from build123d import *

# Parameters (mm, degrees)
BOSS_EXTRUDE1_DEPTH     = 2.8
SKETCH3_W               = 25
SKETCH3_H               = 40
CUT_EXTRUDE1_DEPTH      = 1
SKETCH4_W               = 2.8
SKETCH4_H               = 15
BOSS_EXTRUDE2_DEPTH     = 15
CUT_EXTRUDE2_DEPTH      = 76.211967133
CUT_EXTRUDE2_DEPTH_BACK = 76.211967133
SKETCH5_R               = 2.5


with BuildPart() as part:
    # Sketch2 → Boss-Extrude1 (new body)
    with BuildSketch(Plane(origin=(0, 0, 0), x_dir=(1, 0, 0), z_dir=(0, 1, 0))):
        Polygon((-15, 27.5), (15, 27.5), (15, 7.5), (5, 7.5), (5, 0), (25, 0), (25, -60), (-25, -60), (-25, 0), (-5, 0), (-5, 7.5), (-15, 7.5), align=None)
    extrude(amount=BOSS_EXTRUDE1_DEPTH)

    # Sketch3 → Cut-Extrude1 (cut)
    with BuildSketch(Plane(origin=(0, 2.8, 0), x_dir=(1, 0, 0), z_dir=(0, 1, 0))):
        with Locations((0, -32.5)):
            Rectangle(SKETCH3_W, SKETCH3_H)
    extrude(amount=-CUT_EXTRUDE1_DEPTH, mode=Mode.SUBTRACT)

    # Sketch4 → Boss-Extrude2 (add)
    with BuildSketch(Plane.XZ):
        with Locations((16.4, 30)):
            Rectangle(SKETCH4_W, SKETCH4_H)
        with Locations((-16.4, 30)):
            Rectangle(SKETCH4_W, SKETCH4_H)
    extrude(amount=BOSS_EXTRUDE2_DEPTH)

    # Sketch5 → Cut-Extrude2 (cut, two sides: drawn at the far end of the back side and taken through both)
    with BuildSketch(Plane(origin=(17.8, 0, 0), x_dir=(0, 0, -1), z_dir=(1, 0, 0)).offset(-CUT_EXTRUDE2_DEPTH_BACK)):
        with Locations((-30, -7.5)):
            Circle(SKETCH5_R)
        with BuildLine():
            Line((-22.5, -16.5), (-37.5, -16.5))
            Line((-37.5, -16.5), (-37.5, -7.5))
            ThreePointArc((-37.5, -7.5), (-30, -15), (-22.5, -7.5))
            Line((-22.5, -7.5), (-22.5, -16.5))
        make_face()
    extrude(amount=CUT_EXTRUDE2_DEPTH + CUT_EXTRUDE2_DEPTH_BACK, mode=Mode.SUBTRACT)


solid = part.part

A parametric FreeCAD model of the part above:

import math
import FreeCAD as App
import Part
import Sketcher

V = App.Vector

doc = App.newDocument("Part")
body = doc.addObject("PartDesign::Body", "Body")

# Sketch on XZ plane
sketch1 = body.newObject("Sketcher::SketchObject", "Sketch")
sketch1.AttachmentSupport = (doc.getObject("XZ_Plane"), [""])
sketch1.MapMode = "FlatFace"
sketch1.addGeometry([
    Part.LineSegment(V(15, -28, 0), V(-15, -28, 0)),  # 0
    Part.LineSegment(V(-15, -28, 0), V(-15, -8, 0)),  # 1
    Part.LineSegment(V(-15, -8, 0), V(-5, -8, 0)),  # 2
    Part.LineSegment(V(-5, -8, 0), V(-5, 0, 0)),  # 3
    Part.LineSegment(V(-5, 0, 0), V(-25, 0, 0)),  # 4
    Part.LineSegment(V(-25, 0, 0), V(-25, 60, 0)),  # 5
    Part.LineSegment(V(-25, 60, 0), V(25, 60, 0)),  # 6
    Part.LineSegment(V(25, 60, 0), V(25, 0, 0)),  # 7
    Part.LineSegment(V(25, 0, 0), V(5, 0, 0)),  # 8
    Part.LineSegment(V(5, 0, 0), V(5, -8, 0)),  # 9
    Part.LineSegment(V(5, -8, 0), V(15, -8, 0)),  # 10
    Part.LineSegment(V(15, -8, 0), V(15, -28, 0)),  # 11
], False)
sketch1.addConstraint([
    Sketcher.Constraint("Coincident", 0, 2, 1, 1),
    Sketcher.Constraint("Coincident", 1, 2, 2, 1),
    Sketcher.Constraint("Coincident", 2, 2, 3, 1),
    Sketcher.Constraint("Coincident", 3, 2, 4, 1),
    Sketcher.Constraint("Coincident", 4, 2, 5, 1),
    Sketcher.Constraint("Coincident", 5, 2, 6, 1),
    Sketcher.Constraint("Coincident", 6, 2, 7, 1),
    Sketcher.Constraint("Coincident", 7, 2, 8, 1),
    Sketcher.Constraint("Coincident", 8, 2, 9, 1),
    Sketcher.Constraint("Coincident", 9, 2, 10, 1),
    Sketcher.Constraint("Coincident", 10, 2, 11, 1),
    Sketcher.Constraint("Coincident", 11, 2, 0, 1),
    Sketcher.Constraint("Horizontal", 0),
    Sketcher.Constraint("Vertical", 1),
    Sketcher.Constraint("Horizontal", 2),
    Sketcher.Constraint("Vertical", 3),
    Sketcher.Constraint("Horizontal", 4),
    Sketcher.Constraint("Vertical", 5),
    Sketcher.Constraint("Horizontal", 6),
    Sketcher.Constraint("Vertical", 7),
    Sketcher.Constraint("Horizontal", 8),
    Sketcher.Constraint("Vertical", 9),
    Sketcher.Constraint("Horizontal", 10),
    Sketcher.Constraint("Vertical", 11),
    Sketcher.Constraint("Symmetric", 4, 2, 7, 2, -1, 1),
    Sketcher.Constraint("Symmetric", 3, 2, 8, 2, -2),
    Sketcher.Constraint("Symmetric", 1, 2, 10, 2, -2),
    Sketcher.Constraint("Equal", 8, 1),
    Sketcher.Constraint("DistanceX", 0, 2, 0, 1, 30.0),
    Sketcher.Constraint("DistanceX", 2, 1, 2, 2, 10.0),
    Sketcher.Constraint("DistanceX", 4, 2, 4, 1, 20.0),
    Sketcher.Constraint("DistanceY", 5, 1, 5, 2, 60.0),
    Sketcher.Constraint("DistanceY", 3, 1, 3, 2, 7.5),
])
pad1 = body.newObject("PartDesign::Pad", "Pad")
pad1.Profile = sketch1
pad1.Length = 2.8
pad1.Reversed = True

# Sketch on XZ plane
sketch2 = body.newObject("Sketcher::SketchObject", "Sketch001")
sketch2.AttachmentSupport = (doc.getObject("XZ_Plane"), [""])
sketch2.MapMode = "FlatFace"
sketch2.AttachmentOffset = App.Placement(V(0, 0, -2.8), App.Rotation())
sketch2.addGeometry([
    Part.LineSegment(V(-12, 12, 0), V(-12, 52, 0)),
    Part.LineSegment(V(-12, 52, 0), V(12, 52, 0)),
    Part.LineSegment(V(12, 52, 0), V(12, 12, 0)),
    Part.LineSegment(V(12, 12, 0), V(-12, 12, 0)),
], False)
sketch2.addConstraint([
    Sketcher.Constraint("Coincident", 0, 2, 1, 1),
    Sketcher.Constraint("Coincident", 1, 2, 2, 1),
    Sketcher.Constraint("Coincident", 2, 2, 3, 1),
    Sketcher.Constraint("Coincident", 3, 2, 0, 1),
    Sketcher.Constraint("Vertical", 0),
    Sketcher.Constraint("Horizontal", 1),
    Sketcher.Constraint("Vertical", 2),
    Sketcher.Constraint("Horizontal", 3),
    Sketcher.Constraint("DistanceX", 1, 1, 1, 2, 25.0),
    Sketcher.Constraint("DistanceY", 0, 1, 0, 2, 40.0),
    Sketcher.Constraint("DistanceX", 0, 2, -1, 1, 12.5),
    Sketcher.Constraint("DistanceY", -1, 1, 0, 2, 52.5),
])
pocket1 = body.newObject("PartDesign::Pocket", "Pocket")
pocket1.Profile = sketch2
pocket1.Length = 1
pocket1.Reversed = True

# Sketch on XZ plane
sketch3 = body.newObject("Sketcher::SketchObject", "Sketch002")
sketch3.AttachmentSupport = (doc.getObject("XZ_Plane"), [""])
sketch3.MapMode = "FlatFace"
sketch3.addGeometry([
    Part.LineSegment(V(15, 37.5, 0), V(15, 22.5, 0)),  # 0
    Part.LineSegment(V(15, 22.5, 0), V(17.8, 22.5, 0)),  # 1
    Part.LineSegment(V(17.8, 22.5, 0), V(17.8, 37.5, 0)),  # 2
    Part.LineSegment(V(17.8, 37.5, 0), V(15, 37.5, 0)),  # 3
    Part.LineSegment(V(-17.8, 37.5, 0), V(-17.8, 22.5, 0)),  # 4
    Part.LineSegment(V(-17.8, 22.5, 0), V(-15, 22.5, 0)),  # 5
    Part.LineSegment(V(-15, 22.5, 0), V(-15, 37.5, 0)),  # 6
    Part.LineSegment(V(-15, 37.5, 0), V(-17.8, 37.5, 0)),  # 7
], False)
sketch3.addConstraint([
    Sketcher.Constraint("Coincident", 0, 2, 1, 1),
    Sketcher.Constraint("Coincident", 1, 2, 2, 1),
    Sketcher.Constraint("Coincident", 2, 2, 3, 1),
    Sketcher.Constraint("Coincident", 3, 2, 0, 1),
    Sketcher.Constraint("Coincident", 4, 2, 5, 1),
    Sketcher.Constraint("Coincident", 5, 2, 6, 1),
    Sketcher.Constraint("Coincident", 6, 2, 7, 1),
    Sketcher.Constraint("Coincident", 7, 2, 4, 1),
    Sketcher.Constraint("Vertical", 0),
    Sketcher.Constraint("Horizontal", 1),
    Sketcher.Constraint("Vertical", 2),
    Sketcher.Constraint("Horizontal", 3),
    Sketcher.Constraint("Vertical", 4),
    Sketcher.Constraint("Horizontal", 5),
    Sketcher.Constraint("Vertical", 6),
    Sketcher.Constraint("Horizontal", 7),
    Sketcher.Constraint("Symmetric", 1, 2, 4, 2, -2),
    Sketcher.Constraint("Symmetric", 3, 2, 6, 2, -2),
    Sketcher.Constraint("DistanceY", 0, 2, 0, 1, 15.0),
    Sketcher.Constraint("DistanceX", 1, 1, 1, 2, 2.8),
    Sketcher.Constraint("DistanceX", -1, 1, 0, 2, 15.0),
    Sketcher.Constraint("DistanceY", -1, 1, 0, 2, 22.5),
])
pad2 = body.newObject("PartDesign::Pad", "Pad001")
pad2.Profile = sketch3
pad2.Length = 15

# Sketch on YZ plane
sketch4 = body.newObject("Sketcher::SketchObject", "Sketch003")
sketch4.AttachmentSupport = (doc.getObject("YZ_Plane"), [""])
sketch4.MapMode = "FlatFace"
sketch4.AttachmentOffset = App.Placement(V(0, 0, 17.8), App.Rotation())
sketch4.addGeometry([
    Part.Circle(V(-7.5, 30, 0), V(0, 0, 1), 2.5),  # 0
    Part.LineSegment(V(-16.5, 37.5, 0), V(-16.5, 22.5, 0)),  # 1
    Part.LineSegment(V(-16.5, 22.5, 0), V(-7.5, 22.5, 0)),  # 2
    Part.ArcOfCircle(Part.Circle(V(-7.5, 30, 0), V(0, 0, 1), 7.5), math.radians(90), math.radians(270)),  # 3
    Part.LineSegment(V(-7.5, 37.5, 0), V(-16.5, 37.5, 0)),  # 4
], False)
sketch4.addConstraint([
    Sketcher.Constraint("Coincident", 1, 2, 2, 1),
    Sketcher.Constraint("Tangent", 2, 2, 3, 2),
    Sketcher.Constraint("Tangent", 3, 1, 4, 1),
    Sketcher.Constraint("Coincident", 4, 2, 1, 1),
    Sketcher.Constraint("Vertical", 1),
    Sketcher.Constraint("Horizontal", 2),
    Sketcher.Constraint("Horizontal", 4),
    Sketcher.Constraint("Coincident", 3, 3, 0, 3),
    Sketcher.Constraint("Diameter", 0, 5.0),
    Sketcher.Constraint("Radius", 3, 7.5),
    Sketcher.Constraint("DistanceX", 2, 1, 2, 2, 9.0),
    Sketcher.Constraint("DistanceY", -1, 1, 0, 3, 30.0),
    Sketcher.Constraint("DistanceX", 0, 3, -1, 1, 7.5),
])
pocket2 = body.newObject("PartDesign::Pocket", "Pocket001")
pocket2.Profile = sketch4
pocket2.Type = "ThroughAll"
pocket2.Midplane = True

doc.recompute()
